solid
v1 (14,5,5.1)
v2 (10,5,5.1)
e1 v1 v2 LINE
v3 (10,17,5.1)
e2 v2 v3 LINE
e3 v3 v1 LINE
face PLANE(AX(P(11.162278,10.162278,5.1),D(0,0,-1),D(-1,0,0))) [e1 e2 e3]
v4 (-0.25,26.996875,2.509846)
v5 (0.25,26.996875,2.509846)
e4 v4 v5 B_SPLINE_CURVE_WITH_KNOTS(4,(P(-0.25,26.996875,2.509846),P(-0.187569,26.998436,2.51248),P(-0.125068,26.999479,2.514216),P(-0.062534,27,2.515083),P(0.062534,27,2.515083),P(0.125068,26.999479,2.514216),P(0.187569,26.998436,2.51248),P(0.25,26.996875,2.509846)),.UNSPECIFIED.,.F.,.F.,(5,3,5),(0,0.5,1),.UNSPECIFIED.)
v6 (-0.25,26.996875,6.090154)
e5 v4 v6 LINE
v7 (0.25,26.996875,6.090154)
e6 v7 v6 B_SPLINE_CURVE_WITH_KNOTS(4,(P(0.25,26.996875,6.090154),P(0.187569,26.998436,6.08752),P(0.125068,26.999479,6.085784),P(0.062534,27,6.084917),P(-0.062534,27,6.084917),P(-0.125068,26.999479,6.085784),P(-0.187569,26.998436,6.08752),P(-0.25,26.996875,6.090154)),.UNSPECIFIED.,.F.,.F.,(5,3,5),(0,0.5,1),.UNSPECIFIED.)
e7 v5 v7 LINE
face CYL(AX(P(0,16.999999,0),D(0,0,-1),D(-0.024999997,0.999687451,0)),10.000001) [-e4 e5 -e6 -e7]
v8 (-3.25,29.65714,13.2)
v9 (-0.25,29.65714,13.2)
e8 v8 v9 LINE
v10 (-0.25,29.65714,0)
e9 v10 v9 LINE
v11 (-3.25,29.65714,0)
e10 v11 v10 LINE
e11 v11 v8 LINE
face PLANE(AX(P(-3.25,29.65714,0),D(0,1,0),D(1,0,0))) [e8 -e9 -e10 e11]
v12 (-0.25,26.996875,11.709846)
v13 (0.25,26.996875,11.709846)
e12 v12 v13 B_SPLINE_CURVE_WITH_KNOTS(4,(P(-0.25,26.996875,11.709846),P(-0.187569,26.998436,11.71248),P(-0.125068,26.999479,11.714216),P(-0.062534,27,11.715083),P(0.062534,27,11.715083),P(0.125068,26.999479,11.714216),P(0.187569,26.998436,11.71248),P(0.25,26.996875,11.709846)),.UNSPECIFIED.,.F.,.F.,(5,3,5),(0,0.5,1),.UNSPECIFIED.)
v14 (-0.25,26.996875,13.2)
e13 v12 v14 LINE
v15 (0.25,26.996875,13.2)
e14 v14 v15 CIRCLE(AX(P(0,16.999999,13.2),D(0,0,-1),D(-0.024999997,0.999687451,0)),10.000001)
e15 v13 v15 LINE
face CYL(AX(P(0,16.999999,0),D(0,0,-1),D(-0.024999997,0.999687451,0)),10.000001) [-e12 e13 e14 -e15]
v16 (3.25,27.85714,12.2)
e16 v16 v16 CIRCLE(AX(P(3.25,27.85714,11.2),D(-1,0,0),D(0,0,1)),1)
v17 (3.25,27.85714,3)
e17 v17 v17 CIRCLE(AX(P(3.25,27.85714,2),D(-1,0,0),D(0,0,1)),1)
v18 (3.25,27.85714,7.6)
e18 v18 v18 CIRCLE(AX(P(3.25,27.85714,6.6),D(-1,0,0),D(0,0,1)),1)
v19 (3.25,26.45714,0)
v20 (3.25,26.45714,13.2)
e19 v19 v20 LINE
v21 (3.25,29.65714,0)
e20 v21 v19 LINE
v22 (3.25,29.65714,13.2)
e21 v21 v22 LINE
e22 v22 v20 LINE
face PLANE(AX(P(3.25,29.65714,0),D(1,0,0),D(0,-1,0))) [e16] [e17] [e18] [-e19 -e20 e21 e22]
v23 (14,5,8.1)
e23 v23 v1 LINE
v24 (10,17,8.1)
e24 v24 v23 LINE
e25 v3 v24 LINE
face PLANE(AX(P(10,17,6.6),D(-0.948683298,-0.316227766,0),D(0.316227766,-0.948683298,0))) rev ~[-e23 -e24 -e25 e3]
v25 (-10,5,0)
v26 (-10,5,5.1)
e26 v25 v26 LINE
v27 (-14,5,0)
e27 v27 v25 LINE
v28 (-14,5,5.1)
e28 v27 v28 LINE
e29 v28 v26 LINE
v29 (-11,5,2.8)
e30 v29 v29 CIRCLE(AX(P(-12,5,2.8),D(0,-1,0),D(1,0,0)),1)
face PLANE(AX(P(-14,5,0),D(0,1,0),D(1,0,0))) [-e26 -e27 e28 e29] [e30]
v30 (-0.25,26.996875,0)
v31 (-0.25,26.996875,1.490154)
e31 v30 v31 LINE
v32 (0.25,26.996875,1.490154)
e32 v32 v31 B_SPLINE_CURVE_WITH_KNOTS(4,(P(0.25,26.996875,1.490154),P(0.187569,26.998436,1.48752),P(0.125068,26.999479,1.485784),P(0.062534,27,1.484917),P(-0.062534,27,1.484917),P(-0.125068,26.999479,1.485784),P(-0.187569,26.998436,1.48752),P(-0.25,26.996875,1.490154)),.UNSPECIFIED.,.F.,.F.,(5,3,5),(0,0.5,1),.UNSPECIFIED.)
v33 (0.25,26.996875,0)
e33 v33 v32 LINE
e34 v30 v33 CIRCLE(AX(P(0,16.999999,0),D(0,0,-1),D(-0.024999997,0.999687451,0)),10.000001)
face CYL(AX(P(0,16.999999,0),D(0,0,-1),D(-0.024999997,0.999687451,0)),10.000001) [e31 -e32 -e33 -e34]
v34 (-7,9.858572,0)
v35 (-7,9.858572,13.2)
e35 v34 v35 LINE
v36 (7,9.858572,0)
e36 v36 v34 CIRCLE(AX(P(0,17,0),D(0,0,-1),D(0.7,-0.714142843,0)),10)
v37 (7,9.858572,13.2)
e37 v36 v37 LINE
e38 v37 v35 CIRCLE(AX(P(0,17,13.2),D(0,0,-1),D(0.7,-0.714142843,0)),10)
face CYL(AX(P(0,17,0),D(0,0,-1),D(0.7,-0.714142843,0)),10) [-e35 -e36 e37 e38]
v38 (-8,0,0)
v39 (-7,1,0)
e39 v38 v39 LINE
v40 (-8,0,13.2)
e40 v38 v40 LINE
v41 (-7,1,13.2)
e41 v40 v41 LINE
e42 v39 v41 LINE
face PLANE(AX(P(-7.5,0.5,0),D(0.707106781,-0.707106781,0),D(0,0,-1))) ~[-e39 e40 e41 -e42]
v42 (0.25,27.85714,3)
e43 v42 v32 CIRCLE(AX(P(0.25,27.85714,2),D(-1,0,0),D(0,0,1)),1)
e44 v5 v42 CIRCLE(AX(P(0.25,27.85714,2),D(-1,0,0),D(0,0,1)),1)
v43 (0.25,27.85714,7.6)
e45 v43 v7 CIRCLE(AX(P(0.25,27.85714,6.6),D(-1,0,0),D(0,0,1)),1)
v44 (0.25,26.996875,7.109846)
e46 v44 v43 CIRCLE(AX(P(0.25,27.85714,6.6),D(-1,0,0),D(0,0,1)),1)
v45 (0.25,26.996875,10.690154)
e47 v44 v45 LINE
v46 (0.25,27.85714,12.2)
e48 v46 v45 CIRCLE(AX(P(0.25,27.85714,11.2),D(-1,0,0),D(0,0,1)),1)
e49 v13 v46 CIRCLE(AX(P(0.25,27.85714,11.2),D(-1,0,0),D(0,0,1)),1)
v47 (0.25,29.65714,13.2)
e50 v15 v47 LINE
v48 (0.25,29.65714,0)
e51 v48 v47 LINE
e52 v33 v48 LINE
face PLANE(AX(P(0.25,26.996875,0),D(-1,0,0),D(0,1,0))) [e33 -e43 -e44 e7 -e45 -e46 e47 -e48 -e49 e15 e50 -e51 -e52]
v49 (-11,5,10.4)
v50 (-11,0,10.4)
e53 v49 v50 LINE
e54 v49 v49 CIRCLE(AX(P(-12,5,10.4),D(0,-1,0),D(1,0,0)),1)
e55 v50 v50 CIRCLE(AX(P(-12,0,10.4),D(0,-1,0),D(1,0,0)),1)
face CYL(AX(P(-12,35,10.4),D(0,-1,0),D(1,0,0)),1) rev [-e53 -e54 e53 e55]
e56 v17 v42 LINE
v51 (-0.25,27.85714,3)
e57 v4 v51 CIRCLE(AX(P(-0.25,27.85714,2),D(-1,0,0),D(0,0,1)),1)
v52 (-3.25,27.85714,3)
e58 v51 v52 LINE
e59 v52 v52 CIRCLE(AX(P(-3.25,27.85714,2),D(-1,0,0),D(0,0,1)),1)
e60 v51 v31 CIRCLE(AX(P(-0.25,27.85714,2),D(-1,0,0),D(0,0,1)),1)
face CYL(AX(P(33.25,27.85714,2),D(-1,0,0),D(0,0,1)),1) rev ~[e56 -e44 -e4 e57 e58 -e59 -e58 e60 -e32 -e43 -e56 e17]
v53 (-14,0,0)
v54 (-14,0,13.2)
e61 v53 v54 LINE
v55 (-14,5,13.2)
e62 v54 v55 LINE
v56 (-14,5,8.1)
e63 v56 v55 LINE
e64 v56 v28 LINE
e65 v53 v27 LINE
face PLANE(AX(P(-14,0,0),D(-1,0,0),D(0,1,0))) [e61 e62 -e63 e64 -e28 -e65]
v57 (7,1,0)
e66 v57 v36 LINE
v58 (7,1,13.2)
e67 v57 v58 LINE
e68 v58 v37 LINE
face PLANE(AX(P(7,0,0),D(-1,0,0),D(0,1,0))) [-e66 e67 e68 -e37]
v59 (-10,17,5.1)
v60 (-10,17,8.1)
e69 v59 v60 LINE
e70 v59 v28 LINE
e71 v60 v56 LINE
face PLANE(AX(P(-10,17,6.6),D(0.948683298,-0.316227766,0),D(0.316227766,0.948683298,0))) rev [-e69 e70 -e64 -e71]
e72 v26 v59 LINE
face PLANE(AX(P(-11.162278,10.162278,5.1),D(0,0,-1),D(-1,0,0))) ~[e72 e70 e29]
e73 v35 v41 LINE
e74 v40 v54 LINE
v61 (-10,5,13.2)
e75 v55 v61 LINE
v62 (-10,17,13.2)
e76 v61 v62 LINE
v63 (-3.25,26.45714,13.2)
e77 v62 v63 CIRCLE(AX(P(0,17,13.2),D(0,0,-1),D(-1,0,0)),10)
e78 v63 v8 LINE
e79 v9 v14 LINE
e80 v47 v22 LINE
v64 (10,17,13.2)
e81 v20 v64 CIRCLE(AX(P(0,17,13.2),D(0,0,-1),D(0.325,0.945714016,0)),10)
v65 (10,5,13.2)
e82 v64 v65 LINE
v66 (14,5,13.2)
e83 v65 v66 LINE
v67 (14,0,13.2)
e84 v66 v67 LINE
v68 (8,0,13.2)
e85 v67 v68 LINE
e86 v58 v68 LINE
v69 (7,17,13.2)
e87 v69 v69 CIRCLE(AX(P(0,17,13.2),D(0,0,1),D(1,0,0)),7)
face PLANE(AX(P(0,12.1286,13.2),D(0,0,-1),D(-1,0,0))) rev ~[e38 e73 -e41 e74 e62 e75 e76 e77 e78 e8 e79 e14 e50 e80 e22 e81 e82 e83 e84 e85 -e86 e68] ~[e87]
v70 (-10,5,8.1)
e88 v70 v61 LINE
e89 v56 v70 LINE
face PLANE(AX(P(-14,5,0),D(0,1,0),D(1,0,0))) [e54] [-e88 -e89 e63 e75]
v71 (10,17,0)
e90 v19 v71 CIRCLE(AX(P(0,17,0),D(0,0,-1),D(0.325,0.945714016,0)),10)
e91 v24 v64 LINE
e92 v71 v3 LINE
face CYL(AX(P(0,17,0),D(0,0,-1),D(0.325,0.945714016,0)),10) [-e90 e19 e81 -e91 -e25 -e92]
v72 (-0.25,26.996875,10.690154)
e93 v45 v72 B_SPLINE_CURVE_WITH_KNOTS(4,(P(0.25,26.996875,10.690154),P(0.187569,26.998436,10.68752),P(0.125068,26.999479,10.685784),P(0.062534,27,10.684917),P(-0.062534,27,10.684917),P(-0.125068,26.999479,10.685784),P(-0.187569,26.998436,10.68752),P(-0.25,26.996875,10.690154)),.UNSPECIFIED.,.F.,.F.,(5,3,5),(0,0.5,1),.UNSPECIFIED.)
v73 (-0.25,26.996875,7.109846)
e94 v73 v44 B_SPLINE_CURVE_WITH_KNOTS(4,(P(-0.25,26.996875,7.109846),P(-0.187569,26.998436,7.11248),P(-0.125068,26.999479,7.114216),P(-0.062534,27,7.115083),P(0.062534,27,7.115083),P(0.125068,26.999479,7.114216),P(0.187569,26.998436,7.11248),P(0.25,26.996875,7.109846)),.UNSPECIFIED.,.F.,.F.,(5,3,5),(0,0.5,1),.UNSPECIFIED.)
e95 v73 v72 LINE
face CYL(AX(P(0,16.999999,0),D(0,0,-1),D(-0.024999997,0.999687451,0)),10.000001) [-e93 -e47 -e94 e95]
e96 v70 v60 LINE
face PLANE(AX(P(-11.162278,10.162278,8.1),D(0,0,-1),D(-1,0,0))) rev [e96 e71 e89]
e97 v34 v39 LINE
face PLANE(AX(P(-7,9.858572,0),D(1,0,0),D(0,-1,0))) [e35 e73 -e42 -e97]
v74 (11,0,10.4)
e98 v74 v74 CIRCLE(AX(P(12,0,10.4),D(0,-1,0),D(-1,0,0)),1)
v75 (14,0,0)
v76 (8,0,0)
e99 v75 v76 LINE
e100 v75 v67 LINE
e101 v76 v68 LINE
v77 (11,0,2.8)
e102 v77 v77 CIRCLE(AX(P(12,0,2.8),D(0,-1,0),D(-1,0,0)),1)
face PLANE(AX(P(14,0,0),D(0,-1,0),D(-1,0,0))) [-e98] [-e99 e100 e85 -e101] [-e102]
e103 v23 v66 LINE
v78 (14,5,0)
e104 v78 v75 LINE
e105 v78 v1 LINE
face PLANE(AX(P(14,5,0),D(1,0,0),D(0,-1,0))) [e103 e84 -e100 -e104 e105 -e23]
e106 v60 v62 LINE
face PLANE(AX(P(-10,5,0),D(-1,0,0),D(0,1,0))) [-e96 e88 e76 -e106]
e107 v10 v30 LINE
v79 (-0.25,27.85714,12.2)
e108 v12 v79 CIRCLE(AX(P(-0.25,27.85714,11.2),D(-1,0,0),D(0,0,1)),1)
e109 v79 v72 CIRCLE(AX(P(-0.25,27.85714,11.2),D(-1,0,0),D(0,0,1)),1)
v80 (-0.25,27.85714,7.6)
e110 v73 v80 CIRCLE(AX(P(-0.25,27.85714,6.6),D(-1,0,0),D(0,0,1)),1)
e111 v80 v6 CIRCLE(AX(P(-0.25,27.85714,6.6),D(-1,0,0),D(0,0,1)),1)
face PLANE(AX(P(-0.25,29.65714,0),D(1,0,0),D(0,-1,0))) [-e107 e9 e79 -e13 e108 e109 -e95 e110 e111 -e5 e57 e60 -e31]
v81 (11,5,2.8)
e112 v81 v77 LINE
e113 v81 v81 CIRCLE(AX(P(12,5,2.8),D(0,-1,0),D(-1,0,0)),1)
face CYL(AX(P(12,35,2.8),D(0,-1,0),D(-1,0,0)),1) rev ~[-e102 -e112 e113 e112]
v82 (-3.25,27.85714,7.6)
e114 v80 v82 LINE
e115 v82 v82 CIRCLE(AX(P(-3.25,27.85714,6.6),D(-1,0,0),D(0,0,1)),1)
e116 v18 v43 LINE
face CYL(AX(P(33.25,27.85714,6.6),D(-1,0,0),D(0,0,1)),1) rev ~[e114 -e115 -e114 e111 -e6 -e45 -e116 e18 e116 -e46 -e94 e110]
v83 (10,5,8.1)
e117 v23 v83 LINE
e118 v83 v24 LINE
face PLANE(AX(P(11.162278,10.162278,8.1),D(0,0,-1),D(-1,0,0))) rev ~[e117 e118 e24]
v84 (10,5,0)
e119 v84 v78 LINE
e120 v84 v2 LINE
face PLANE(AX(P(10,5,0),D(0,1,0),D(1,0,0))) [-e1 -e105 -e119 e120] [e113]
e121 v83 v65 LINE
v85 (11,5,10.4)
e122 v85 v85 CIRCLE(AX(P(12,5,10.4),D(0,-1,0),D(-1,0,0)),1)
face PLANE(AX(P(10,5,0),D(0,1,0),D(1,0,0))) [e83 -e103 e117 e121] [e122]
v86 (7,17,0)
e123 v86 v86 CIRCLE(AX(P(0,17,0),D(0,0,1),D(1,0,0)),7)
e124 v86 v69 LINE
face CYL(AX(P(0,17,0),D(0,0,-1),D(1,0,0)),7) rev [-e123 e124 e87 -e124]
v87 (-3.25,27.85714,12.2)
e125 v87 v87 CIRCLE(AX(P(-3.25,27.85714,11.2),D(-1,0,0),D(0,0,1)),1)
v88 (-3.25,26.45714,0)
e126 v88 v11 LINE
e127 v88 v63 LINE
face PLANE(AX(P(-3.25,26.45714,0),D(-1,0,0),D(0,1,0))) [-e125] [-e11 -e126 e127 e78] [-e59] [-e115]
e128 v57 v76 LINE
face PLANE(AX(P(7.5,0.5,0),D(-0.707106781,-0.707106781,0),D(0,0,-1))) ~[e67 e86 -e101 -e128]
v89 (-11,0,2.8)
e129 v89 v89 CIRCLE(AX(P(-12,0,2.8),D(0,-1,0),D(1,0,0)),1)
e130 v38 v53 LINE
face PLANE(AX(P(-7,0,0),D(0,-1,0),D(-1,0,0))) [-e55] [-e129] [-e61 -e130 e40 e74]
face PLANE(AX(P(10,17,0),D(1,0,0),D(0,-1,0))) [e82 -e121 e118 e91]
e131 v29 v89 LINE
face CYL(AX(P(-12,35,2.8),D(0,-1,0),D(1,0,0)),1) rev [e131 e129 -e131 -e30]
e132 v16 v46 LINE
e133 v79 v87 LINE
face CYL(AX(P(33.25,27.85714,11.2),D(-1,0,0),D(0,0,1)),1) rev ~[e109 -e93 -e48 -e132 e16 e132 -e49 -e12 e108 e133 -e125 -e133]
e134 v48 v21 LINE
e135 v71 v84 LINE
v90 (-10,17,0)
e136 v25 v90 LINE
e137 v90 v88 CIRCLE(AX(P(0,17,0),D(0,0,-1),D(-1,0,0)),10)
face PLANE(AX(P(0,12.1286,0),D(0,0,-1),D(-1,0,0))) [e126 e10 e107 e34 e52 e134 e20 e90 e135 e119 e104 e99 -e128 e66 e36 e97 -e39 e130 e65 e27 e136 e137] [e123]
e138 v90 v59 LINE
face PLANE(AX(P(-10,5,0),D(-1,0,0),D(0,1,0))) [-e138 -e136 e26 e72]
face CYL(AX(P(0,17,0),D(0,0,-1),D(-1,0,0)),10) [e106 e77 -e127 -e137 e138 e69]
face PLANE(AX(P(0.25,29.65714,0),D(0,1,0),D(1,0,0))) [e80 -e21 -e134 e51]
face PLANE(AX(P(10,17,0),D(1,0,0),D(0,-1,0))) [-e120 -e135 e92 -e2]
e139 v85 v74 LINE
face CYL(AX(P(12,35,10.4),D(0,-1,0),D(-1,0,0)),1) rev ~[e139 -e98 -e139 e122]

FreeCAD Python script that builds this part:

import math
import FreeCAD as App
import Part
import Sketcher

V = App.Vector


def edges_at(feature, points):
    """Names of the edges that pass closest to the given points."""
    edges = feature.Shape.Edges
    near = lambda p: min(range(len(edges)), key=lambda i: edges[i].distToShape(Part.Vertex(*p))[0])
    return sorted({f"Edge{near(p) + 1}" for p in points})

doc = App.newDocument("Part")
body = doc.addObject("PartDesign::Body", "Body")

# Sketch on XY plane
sketch1 = body.newObject("Sketcher::SketchObject", "Sketch")
sketch1.AttachmentSupport = (doc.getObject("XY_Plane"), [""])
sketch1.MapMode = "FlatFace"
sketch1.addGeometry([
    Part.LineSegment(V(-14, 5, 0), V(-14, 0, 0)),  # 0
    Part.LineSegment(V(-14, 0, 0), V(-7, 0, 0)),  # 1
    Part.LineSegment(V(-7, 0, 0), V(-7, 9.9, 0)),  # 2
    Part.ArcOfCircle(Part.Circle(V(0, 17, 0), V(0, 0, 1), 10), math.radians(-134), math.radians(-46)),  # 3
    Part.LineSegment(V(7, 9.9, 0), V(7, 0, 0)),  # 4
    Part.LineSegment(V(7, 0, 0), V(14, 0, 0)),  # 5
    Part.LineSegment(V(14, 0, 0), V(14, 5, 0)),  # 6
    Part.LineSegment(V(14, 5, 0), V(10, 5, 0)),  # 7
    Part.LineSegment(V(10, 5, 0), V(10, 17, 0)),  # 8
    Part.ArcOfCircle(Part.Circle(V(0, 17, 0), V(0, 0, 1), 10), math.radians(0), math.radians(71)),  # 9
    Part.LineSegment(V(3.2, 26.5, 0), V(3.2, 29.7, 0)),  # 10
    Part.LineSegment(V(3.2, 29.7, 0), V(0.2, 29.7, 0)),  # 11
    Part.LineSegment(V(0.2, 29.7, 0), V(0.2, 27, 0)),  # 12
    Part.ArcOfCircle(Part.Circle(V(0, 17, 0), V(0, 0, 1), 10), math.radians(88.57), math.radians(91.43)),  # 13
    Part.LineSegment(V(-0.2, 27, 0), V(-0.2, 29.7, 0)),  # 14
    Part.LineSegment(V(-0.2, 29.7, 0), V(-3.2, 29.7, 0)),  # 15
    Part.LineSegment(V(-3.2, 29.7, 0), V(-3.2, 26.5, 0)),  # 16
    Part.ArcOfCircle(Part.Circle(V(0, 17, 0), V(0, 0, 1), 10), math.radians(109), math.radians(180)),  # 17
    Part.LineSegment(V(-10, 17, 0), V(-10, 5, 0)),  # 18
    Part.LineSegment(V(-10, 5, 0), V(-14, 5, 0)),  # 19
    Part.Circle(V(0, 17, 0), V(0, 0, 1), 7),  # 20
], False)
sketch1.addConstraint([
    Sketcher.Constraint("Coincident", 0, 2, 1, 1),
    Sketcher.Constraint("Coincident", 1, 2, 2, 1),
    Sketcher.Constraint("Coincident", 2, 2, 3, 1),
    Sketcher.Constraint("Coincident", 3, 2, 4, 1),
    Sketcher.Constraint("Coincident", 4, 2, 5, 1),
    Sketcher.Constraint("Coincident", 5, 2, 6, 1),
    Sketcher.Constraint("Coincident", 6, 2, 7, 1),
    Sketcher.Constraint("Coincident", 7, 2, 8, 1),
    Sketcher.Constraint("Tangent", 8, 2, 9, 1),
    Sketcher.Constraint("Coincident", 9, 2, 10, 1),
    Sketcher.Constraint("Coincident", 10, 2, 11, 1),
    Sketcher.Constraint("Coincident", 11, 2, 12, 1),
    Sketcher.Constraint("Coincident", 12, 2, 13, 1),
    Sketcher.Constraint("Coincident", 13, 2, 14, 1),
    Sketcher.Constraint("Coincident", 14, 2, 15, 1),
    Sketcher.Constraint("Coincident", 15, 2, 16, 1),
    Sketcher.Constraint("Coincident", 16, 2, 17, 1),
    Sketcher.Constraint("Tangent", 17, 2, 18, 1),
    Sketcher.Constraint("Coincident", 18, 2, 19, 1),
    Sketcher.Constraint("Coincident", 19, 2, 0, 1),
    Sketcher.Constraint("Vertical", 0),
    Sketcher.Constraint("Horizontal", 1),
    Sketcher.Constraint("Vertical", 2),
    Sketcher.Constraint("Vertical", 4),
    Sketcher.Constraint("Horizontal", 5),
    Sketcher.Constraint("Vertical", 6),
    Sketcher.Constraint("Horizontal", 7),
    Sketcher.Constraint("Vertical", 8),
    Sketcher.Constraint("Vertical", 10),
    Sketcher.Constraint("Horizontal", 11),
    Sketcher.Constraint("Vertical", 12),
    Sketcher.Constraint("Vertical", 14),
    Sketcher.Constraint("Horizontal", 15),
    Sketcher.Constraint("Vertical", 16),
    Sketcher.Constraint("Vertical", 18),
    Sketcher.Constraint("Horizontal", 19),
    Sketcher.Constraint("Coincident", 9, 3, 3, 3),
    Sketcher.Constraint("Coincident", 13, 3, 3, 3),
    Sketcher.Constraint("Coincident", 17, 3, 3, 3),
    Sketcher.Constraint("Coincident", 20, 3, 3, 3),
    Sketcher.Constraint("Equal", 3, 9),
    Sketcher.Constraint("Equal", 9, 13),
    Sketcher.Constraint("Equal", 13, 17),
    Sketcher.Constraint("Symmetric", 1, 2, 4, 2, -1, 1),
    Sketcher.Constraint("Symmetric", 0, 2, 5, 2, -2),
    Sketcher.Constraint("Symmetric", 12, 2, 13, 2, -2),
    Sketcher.Constraint("Symmetric", 10, 2, 15, 2, -2),
    Sketcher.Constraint("Horizontal", 7, 2, 18, 2),
    Sketcher.Constraint("Diameter", 20, 14.0),
    Sketcher.Constraint("Radius", 3, 10.0),
    Sketcher.Constraint("DistanceX", 1, 1, 1, 2, 7.0),
    Sketcher.Constraint("DistanceX", 7, 2, 7, 1, 4.0),
    Sketcher.Constraint("DistanceX", 11, 2, 11, 1, 3.0),
    Sketcher.Constraint("DistanceY", 0, 2, 0, 1, 5.0),
    Sketcher.Constraint("DistanceY", 8, 1, 8, 2, 12.0),
    Sketcher.Constraint("DistanceY", 10, 1, 10, 2, 3.2),
    Sketcher.Constraint("DistanceX", 13, 2, 12, 2, 0.5),
])
pad1 = body.newObject("PartDesign::Pad", "Pad")
pad1.Profile = sketch1
pad1.Length = 13.2

# Sketch on YZ plane
sketch2 = body.newObject("Sketcher::SketchObject", "Sketch001")
sketch2.AttachmentSupport = (doc.getObject("YZ_Plane"), [""])
sketch2.MapMode = "FlatFace"
sketch2.AttachmentOffset = App.Placement(V(0, 0, 3.25), App.Rotation())
sketch2.addGeometry([
    Part.Circle(V(27.9, 11.2, 0), V(0, 0, 1), 1),
    Part.Circle(V(27.9, 2, 0), V(0, 0, 1), 1),
    Part.Circle(V(27.9, 6.6, 0), V(0, 0, 1), 1),
], False)
sketch2.addConstraint([
    Sketcher.Constraint("Equal", 0, 1),
    Sketcher.Constraint("Equal", 1, 2),
    Sketcher.Constraint("Vertical", 0, 3, 1, 3),
    Sketcher.Constraint("Vertical", 1, 3, 2, 3),
    Sketcher.Constraint("Diameter", 0, 2.0),
    Sketcher.Constraint("DistanceY", -1, 1, 1, 3, 2.0),
    Sketcher.Constraint("DistanceY", -1, 1, 0, 3, 11.2),
    Sketcher.Constraint("DistanceY", -1, 1, 2, 3, 6.6),
    Sketcher.Constraint("DistanceX", -1, 1, 0, 3, 27.85714),
])
doc.recompute()
hole = body.newObject("PartDesign::Hole", "Hole")
hole.Profile = sketch2
hole.ThreadType = "None"
hole.Diameter = 2
hole.DepthType = "Dimension"
hole.Depth = 30
hole.DrillPoint = "Flat"

# Sketch on XZ plane
sketch3 = body.newObject("Sketcher::SketchObject", "Sketch002")
sketch3.AttachmentSupport = (doc.getObject("XZ_Plane"), [""])
sketch3.MapMode = "FlatFace"
sketch3.AttachmentOffset = App.Placement(V(0, 0, -5), App.Rotation())
sketch3.addGeometry([
    Part.Circle(V(12, 2.8, 0), V(0, 0, 1), 1),
    Part.Circle(V(12, 10.4, 0), V(0, 0, 1), 1),
], False)
sketch3.addConstraint([
    Sketcher.Constraint("Equal", 0, 1),
    Sketcher.Constraint("Vertical", 0, 3, 1, 3),
    Sketcher.Constraint("Diameter", 0, 2.0),
    Sketcher.Constraint("DistanceX", -1, 1, 0, 3, 12.0),
    Sketcher.Constraint("DistanceY", -1, 1, 0, 3, 2.8),
    Sketcher.Constraint("DistanceY", -1, 1, 1, 3, 10.4),
])
doc.recompute()
hole2 = body.newObject("PartDesign::Hole", "Hole001")
hole2.Profile = sketch3
hole2.ThreadType = "None"
hole2.Diameter = 2
hole2.DepthType = "Dimension"
hole2.Depth = 30
hole2.DrillPoint = "Flat"
hole2.Reversed = True
doc.recompute()

mirrored = body.newObject("PartDesign::Mirrored", "Mirrored")
mirrored.Originals = [hole2]
mirrored.MirrorPlane = (doc.getObject("YZ_Plane"), [""])
body.Tip = mirrored

# Sketch on XY plane
sketch4 = body.newObject("Sketcher::SketchObject", "Sketch003")
sketch4.AttachmentSupport = (doc.getObject("XY_Plane"), [""])
sketch4.MapMode = "FlatFace"
sketch4.AttachmentOffset = App.Placement(V(0, 0, 6.6), App.Rotation())
sketch4.addGeometry([
    Part.LineSegment(V(14, 5, 0), V(10, 17, 0)),
    Part.LineSegment(V(10, 17, 0), V(10, 5, 0)),
    Part.LineSegment(V(10, 5, 0), V(14, 5, 0)),
], False)
sketch4.addConstraint([
    Sketcher.Constraint("Coincident", 0, 2, 1, 1),
    Sketcher.Constraint("Coincident", 1, 2, 2, 1),
    Sketcher.Constraint("Coincident", 2, 2, 0, 1),
    Sketcher.Constraint("Vertical", 1),
    Sketcher.Constraint("Horizontal", 2),
    Sketcher.Constraint("DistanceX", 2, 1, 2, 2, 4.0),
    Sketcher.Constraint("DistanceY", 1, 2, 1, 1, 12.0),
    Sketcher.Constraint("DistanceX", -1, 1, 0, 2, 10.0),
    Sketcher.Constraint("DistanceY", -1, 1, 0, 2, 17.0),
])
pad2 = body.newObject("PartDesign::Pad", "Pad001")
pad2.Profile = sketch4
pad2.Length = 3
pad2.Midplane = True
doc.recompute()

mirrored2 = body.newObject("PartDesign::Mirrored", "Mirrored001")
mirrored2.Originals = [pad2]
mirrored2.MirrorPlane = (doc.getObject("YZ_Plane"), [""])
body.Tip = mirrored2
doc.recompute()

chamfer = body.newObject("PartDesign::Chamfer", "Chamfer")
chamfer.Base = (mirrored2, edges_at(mirrored2, [(7, 0, 6.6), (-7, 0, 6.6)]))
chamfer.Size = 1

doc.recompute()
